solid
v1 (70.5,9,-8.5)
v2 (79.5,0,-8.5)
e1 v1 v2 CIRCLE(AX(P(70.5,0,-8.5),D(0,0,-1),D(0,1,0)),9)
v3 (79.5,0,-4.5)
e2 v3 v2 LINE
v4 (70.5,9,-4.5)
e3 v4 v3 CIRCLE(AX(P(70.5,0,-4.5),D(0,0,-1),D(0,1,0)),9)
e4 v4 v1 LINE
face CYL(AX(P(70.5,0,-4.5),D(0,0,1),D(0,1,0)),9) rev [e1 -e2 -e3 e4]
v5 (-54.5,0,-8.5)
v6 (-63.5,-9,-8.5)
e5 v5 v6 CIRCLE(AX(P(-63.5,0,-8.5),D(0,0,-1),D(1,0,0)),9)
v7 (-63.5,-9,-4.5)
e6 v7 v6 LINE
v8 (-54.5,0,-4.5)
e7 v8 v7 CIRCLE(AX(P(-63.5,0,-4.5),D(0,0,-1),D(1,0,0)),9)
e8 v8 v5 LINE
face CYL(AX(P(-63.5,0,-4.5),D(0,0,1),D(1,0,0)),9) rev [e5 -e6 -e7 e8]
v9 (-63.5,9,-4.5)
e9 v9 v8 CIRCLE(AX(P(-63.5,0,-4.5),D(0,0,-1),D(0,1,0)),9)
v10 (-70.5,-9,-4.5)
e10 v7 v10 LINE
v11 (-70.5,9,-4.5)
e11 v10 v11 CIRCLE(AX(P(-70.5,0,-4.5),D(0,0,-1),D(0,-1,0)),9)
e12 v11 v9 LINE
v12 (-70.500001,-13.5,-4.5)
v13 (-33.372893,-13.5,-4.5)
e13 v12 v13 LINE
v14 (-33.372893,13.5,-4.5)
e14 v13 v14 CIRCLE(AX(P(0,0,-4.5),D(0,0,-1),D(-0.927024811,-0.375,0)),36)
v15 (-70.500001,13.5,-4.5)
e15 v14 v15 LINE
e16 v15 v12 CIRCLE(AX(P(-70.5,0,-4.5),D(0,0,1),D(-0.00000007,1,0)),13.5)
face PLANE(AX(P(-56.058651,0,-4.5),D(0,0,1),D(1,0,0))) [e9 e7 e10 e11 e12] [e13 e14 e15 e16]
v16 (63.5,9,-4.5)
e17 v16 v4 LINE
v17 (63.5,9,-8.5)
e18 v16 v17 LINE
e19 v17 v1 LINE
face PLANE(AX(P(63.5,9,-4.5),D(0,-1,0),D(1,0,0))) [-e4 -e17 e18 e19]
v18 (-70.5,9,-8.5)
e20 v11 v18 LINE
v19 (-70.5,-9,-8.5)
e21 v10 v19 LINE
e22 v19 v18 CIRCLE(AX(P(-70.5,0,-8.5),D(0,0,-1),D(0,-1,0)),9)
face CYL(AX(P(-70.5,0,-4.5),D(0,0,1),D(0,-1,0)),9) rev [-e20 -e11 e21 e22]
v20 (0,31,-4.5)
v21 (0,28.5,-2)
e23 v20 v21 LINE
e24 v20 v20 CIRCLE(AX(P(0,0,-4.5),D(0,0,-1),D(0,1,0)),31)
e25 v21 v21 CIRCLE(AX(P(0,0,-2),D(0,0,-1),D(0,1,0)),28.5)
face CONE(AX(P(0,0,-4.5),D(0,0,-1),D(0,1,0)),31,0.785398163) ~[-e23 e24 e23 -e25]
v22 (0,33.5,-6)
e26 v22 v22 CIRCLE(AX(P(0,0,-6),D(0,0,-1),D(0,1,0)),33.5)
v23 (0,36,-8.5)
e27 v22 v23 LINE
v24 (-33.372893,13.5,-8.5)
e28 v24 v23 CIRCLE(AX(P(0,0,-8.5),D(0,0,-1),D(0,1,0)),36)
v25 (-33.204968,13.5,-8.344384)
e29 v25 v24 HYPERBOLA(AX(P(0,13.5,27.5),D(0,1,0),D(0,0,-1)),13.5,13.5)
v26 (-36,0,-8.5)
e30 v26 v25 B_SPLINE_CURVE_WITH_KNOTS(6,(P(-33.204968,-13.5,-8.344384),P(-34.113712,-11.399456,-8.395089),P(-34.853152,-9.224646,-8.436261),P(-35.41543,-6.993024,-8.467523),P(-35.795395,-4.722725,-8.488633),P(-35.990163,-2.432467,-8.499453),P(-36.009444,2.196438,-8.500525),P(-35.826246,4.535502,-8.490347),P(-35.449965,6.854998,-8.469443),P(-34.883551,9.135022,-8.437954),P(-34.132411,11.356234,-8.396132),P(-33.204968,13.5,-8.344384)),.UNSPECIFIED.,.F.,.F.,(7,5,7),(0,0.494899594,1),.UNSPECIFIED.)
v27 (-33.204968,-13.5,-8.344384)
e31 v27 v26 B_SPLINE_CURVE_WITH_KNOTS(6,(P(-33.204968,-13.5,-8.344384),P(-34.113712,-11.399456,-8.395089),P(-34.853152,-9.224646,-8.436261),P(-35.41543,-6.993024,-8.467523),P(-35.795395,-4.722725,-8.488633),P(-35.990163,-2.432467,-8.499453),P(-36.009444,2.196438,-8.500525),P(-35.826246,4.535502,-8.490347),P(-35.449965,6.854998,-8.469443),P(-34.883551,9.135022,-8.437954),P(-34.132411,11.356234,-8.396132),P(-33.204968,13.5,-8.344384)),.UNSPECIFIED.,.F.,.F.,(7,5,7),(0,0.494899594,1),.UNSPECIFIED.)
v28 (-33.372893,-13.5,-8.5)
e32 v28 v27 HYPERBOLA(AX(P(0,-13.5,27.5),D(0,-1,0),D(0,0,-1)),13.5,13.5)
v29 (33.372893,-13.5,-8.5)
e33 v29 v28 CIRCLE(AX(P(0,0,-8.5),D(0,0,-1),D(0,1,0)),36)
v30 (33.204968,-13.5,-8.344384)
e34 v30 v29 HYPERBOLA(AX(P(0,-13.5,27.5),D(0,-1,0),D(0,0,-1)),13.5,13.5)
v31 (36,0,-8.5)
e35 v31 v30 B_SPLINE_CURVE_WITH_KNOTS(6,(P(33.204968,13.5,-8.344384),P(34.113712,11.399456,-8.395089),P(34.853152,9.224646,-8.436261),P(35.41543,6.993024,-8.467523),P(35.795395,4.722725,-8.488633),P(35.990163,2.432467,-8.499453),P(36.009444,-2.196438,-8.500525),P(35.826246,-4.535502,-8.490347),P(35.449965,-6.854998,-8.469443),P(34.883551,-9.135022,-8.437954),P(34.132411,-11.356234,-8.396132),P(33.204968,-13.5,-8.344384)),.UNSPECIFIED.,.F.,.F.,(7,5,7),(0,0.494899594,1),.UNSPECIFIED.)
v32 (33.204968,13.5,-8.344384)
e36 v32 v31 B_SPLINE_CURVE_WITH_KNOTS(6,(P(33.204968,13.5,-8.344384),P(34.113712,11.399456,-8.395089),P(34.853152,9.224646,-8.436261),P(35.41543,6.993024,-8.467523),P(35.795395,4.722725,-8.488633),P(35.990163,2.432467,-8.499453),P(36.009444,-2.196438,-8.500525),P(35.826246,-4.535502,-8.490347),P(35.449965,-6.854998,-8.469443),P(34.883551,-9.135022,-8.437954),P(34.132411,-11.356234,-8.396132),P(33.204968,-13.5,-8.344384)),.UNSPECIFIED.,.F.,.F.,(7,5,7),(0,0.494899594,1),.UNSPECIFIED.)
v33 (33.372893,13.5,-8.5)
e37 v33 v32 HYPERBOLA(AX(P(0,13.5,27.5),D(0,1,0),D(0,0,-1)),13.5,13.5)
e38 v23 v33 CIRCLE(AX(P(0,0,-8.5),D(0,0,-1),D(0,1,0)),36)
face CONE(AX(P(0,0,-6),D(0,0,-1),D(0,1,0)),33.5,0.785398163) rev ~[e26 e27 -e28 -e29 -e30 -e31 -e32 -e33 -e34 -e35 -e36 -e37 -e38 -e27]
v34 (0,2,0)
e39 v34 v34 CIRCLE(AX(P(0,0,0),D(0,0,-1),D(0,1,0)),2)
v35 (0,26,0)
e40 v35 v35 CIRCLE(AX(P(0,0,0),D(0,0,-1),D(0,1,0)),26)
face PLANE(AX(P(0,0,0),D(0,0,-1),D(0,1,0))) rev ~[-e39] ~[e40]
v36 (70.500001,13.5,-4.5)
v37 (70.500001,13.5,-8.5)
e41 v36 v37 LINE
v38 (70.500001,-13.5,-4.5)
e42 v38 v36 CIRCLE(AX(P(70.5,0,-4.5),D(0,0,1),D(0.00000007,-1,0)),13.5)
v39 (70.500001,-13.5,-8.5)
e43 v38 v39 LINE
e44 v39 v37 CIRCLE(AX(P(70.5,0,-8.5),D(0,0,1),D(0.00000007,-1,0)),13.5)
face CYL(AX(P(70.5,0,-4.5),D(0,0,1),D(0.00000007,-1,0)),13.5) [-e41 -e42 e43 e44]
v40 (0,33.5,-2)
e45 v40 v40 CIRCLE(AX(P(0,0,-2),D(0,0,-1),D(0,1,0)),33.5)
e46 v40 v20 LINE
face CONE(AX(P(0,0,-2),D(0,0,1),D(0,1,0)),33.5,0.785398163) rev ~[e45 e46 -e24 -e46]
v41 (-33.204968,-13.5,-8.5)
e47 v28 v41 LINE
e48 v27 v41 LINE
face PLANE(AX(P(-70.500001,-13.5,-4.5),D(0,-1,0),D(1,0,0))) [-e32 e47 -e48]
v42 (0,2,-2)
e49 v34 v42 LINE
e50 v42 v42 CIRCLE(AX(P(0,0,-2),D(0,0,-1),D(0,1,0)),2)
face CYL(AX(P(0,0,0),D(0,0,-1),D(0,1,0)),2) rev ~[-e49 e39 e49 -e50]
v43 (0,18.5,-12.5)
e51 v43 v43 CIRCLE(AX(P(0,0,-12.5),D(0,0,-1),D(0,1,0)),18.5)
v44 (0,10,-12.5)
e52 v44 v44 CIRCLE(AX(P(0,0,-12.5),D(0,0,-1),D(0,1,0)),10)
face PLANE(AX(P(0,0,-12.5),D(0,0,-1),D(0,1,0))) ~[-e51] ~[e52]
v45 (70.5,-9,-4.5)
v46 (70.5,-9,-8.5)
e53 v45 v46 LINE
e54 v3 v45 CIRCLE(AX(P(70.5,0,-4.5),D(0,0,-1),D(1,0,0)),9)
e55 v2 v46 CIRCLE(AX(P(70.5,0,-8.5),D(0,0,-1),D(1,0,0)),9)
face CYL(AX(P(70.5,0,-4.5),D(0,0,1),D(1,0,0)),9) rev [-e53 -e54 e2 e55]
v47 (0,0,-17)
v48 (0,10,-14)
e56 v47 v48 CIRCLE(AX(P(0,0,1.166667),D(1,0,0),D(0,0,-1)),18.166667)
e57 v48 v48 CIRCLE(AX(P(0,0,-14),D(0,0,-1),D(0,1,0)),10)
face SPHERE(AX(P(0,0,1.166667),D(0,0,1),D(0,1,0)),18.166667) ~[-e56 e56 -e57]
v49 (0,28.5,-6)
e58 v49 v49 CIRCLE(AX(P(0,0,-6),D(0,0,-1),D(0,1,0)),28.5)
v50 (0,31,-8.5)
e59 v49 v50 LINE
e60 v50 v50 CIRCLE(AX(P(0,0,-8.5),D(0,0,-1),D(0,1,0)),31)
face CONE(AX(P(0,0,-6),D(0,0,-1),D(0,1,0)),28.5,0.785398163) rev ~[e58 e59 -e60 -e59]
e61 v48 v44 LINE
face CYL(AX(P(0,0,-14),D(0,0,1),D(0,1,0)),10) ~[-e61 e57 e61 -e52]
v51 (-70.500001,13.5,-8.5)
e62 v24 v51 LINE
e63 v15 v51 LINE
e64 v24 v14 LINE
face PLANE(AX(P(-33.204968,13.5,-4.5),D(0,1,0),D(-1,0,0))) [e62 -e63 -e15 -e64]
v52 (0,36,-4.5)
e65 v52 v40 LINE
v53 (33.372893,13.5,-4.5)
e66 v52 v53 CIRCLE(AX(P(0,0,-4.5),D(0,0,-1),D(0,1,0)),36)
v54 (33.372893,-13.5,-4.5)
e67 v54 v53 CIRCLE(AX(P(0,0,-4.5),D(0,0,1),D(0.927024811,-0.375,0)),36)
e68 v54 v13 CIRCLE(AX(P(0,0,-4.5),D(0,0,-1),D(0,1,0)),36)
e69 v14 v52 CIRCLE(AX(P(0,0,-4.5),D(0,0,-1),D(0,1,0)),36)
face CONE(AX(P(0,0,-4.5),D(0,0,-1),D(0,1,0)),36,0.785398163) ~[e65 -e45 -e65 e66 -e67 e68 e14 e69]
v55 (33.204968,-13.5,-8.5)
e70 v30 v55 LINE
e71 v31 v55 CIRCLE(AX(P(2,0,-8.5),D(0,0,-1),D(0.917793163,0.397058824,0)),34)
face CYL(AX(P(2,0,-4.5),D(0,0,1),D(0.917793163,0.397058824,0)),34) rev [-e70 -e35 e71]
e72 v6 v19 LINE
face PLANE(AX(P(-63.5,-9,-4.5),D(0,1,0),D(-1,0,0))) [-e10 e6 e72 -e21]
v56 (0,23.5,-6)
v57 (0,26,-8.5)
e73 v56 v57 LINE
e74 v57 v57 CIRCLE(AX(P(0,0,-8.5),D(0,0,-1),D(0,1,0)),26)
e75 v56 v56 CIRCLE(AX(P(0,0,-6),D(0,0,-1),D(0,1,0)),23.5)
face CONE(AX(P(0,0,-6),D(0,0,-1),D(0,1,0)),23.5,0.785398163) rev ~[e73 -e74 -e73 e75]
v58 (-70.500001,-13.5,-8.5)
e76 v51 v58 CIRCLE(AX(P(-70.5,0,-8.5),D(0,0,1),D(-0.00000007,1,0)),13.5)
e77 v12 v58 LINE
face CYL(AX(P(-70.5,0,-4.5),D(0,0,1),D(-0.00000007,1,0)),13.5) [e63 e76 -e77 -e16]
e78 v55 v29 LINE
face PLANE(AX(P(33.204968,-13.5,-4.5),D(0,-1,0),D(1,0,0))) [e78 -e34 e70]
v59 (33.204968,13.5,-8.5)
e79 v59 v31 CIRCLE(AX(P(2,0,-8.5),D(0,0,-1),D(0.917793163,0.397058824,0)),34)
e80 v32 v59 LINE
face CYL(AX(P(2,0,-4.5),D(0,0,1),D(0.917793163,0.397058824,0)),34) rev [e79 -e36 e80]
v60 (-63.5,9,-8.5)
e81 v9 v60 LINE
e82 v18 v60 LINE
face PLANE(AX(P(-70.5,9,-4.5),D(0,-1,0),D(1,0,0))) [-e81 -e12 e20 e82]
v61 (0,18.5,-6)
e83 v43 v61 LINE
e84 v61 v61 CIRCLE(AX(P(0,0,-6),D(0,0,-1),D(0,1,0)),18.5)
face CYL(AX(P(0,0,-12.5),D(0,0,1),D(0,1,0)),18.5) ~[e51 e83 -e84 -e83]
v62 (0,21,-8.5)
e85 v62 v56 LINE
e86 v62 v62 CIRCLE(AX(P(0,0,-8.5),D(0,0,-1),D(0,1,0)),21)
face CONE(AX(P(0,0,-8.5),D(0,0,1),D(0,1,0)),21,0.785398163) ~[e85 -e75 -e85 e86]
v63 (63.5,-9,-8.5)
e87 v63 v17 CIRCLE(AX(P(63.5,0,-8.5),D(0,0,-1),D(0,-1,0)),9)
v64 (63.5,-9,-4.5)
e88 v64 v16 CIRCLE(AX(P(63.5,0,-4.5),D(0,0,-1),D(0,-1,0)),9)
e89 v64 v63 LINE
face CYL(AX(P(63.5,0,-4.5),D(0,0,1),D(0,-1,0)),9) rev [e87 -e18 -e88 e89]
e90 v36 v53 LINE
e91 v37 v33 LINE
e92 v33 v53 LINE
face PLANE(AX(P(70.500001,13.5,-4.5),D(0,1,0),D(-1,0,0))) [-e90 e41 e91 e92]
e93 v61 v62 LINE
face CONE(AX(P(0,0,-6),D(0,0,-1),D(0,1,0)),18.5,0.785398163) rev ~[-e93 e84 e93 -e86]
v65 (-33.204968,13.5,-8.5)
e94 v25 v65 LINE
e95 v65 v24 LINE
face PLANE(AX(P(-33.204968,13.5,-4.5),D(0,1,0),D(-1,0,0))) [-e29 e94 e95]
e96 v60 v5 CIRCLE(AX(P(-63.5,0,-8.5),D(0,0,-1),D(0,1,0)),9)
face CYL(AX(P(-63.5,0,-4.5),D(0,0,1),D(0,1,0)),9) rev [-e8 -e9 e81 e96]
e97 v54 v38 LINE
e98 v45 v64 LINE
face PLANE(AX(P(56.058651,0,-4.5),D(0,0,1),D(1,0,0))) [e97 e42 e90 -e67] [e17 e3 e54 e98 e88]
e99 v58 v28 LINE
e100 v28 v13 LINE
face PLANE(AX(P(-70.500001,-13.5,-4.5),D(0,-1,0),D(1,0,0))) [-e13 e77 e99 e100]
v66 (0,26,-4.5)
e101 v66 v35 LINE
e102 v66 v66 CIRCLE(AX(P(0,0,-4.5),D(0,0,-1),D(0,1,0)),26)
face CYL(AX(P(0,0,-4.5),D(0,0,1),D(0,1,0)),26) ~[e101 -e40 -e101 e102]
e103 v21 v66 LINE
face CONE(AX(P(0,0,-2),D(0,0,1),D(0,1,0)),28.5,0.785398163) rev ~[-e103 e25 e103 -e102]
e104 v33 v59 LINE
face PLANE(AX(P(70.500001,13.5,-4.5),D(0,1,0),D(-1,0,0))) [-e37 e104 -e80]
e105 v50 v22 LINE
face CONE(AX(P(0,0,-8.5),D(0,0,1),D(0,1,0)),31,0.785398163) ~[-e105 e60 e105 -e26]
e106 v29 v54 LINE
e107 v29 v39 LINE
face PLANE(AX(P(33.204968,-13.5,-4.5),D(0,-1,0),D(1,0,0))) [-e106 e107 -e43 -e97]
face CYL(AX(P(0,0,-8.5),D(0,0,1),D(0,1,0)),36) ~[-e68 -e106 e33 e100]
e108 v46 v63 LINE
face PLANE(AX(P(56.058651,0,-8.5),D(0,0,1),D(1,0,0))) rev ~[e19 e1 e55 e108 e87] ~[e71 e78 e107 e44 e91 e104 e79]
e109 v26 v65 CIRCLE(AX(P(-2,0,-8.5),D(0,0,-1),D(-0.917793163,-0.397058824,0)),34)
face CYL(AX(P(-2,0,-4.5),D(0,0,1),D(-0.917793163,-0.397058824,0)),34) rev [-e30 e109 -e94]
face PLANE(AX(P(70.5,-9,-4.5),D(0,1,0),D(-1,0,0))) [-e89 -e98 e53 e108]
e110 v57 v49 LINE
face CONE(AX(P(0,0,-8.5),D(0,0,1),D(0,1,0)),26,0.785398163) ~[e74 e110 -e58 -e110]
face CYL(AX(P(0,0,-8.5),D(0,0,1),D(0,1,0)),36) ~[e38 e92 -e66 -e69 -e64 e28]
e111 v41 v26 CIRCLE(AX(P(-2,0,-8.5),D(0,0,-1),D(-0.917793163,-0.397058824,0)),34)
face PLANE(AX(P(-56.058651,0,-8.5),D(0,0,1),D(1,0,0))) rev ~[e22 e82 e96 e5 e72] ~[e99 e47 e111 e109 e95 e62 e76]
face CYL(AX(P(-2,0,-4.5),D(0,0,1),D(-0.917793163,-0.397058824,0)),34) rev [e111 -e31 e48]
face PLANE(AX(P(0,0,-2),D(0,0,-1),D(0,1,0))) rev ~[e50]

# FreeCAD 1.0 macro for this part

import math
import FreeCAD as App
import Part
import Sketcher
from FreeCAD import Vector

doc = App.newDocument("Part")
body = doc.addObject("PartDesign::Body", "Body")

# Sketch on YZ plane
sketch1 = doc.addObject("Sketcher::SketchObject", "Sketch")
body.addObject(sketch1)
sketch1.AttachmentSupport = (doc.YZ_Plane, [""])
sketch1.MapMode = "FlatFace"
sketch1.addGeometry([
    Part.LineSegment(Vector(26, 0, 0), Vector(2, 0, 0)),  # 0
    Part.LineSegment(Vector(2, 0, 0), Vector(2, -2, 0)),  # 1
    Part.LineSegment(Vector(2, -2, 0), Vector(0, -2, 0)),  # 2
    Part.LineSegment(Vector(0, -2, 0), Vector(0, -17, 0)),  # 3
    Part.ArcOfCircle(Part.Circle(Vector(0, 1.2, 0), Vector(0, 0, 1), 18.2), math.radians(-90), math.radians(-57)),  # 4
    Part.LineSegment(Vector(10, -14, 0), Vector(10, -12.5, 0)),  # 5
    Part.LineSegment(Vector(10, -12.5, 0), Vector(18.5, -12.5, 0)),  # 6
    Part.LineSegment(Vector(18.5, -12.5, 0), Vector(18.5, -6, 0)),  # 7
    Part.LineSegment(Vector(18.5, -6, 0), Vector(21, -8.5, 0)),  # 8
    Part.LineSegment(Vector(21, -8.5, 0), Vector(23.5, -6, 0)),  # 9
    Part.LineSegment(Vector(23.5, -6, 0), Vector(26, -8.5, 0)),  # 10
    Part.LineSegment(Vector(26, -8.5, 0), Vector(28.5, -6, 0)),  # 11
    Part.LineSegment(Vector(28.5, -6, 0), Vector(31, -8.5, 0)),  # 12
    Part.LineSegment(Vector(31, -8.5, 0), Vector(33.5, -6, 0)),  # 13
    Part.LineSegment(Vector(33.5, -6, 0), Vector(36, -8.5, 0)),  # 14
    Part.LineSegment(Vector(36, -8.5, 0), Vector(36, -4.5, 0)),  # 15
    Part.LineSegment(Vector(36, -4.5, 0), Vector(33.5, -2, 0)),  # 16
    Part.LineSegment(Vector(33.5, -2, 0), Vector(31, -4.5, 0)),  # 17
    Part.LineSegment(Vector(31, -4.5, 0), Vector(28.5, -2, 0)),  # 18
    Part.LineSegment(Vector(28.5, -2, 0), Vector(26, -4.5, 0)),  # 19
    Part.LineSegment(Vector(26, -4.5, 0), Vector(26, 0, 0)),  # 20
], False)
sketch1.addConstraint([
    Sketcher.Constraint("Coincident", 0, 2, 1, 1),
    Sketcher.Constraint("Coincident", 1, 2, 2, 1),
    Sketcher.Constraint("Coincident", 2, 2, 3, 1),
    Sketcher.Constraint("Coincident", 3, 2, 4, 1),
    Sketcher.Constraint("Coincident", 4, 2, 5, 1),
    Sketcher.Constraint("Coincident", 5, 2, 6, 1),
    Sketcher.Constraint("Coincident", 6, 2, 7, 1),
    Sketcher.Constraint("Coincident", 7, 2, 8, 1),
    Sketcher.Constraint("Coincident", 8, 2, 9, 1),
    Sketcher.Constraint("Coincident", 9, 2, 10, 1),
    Sketcher.Constraint("Coincident", 10, 2, 11, 1),
    Sketcher.Constraint("Coincident", 11, 2, 12, 1),
    Sketcher.Constraint("Coincident", 12, 2, 13, 1),
    Sketcher.Constraint("Coincident", 13, 2, 14, 1),
    Sketcher.Constraint("Coincident", 14, 2, 15, 1),
    Sketcher.Constraint("Coincident", 15, 2, 16, 1),
    Sketcher.Constraint("Coincident", 16, 2, 17, 1),
    Sketcher.Constraint("Coincident", 17, 2, 18, 1),
    Sketcher.Constraint("Coincident", 18, 2, 19, 1),
    Sketcher.Constraint("Coincident", 19, 2, 20, 1),
    Sketcher.Constraint("Coincident", 20, 2, 0, 1),
    Sketcher.Constraint("Horizontal", 0),
    Sketcher.Constraint("Vertical", 1),
    Sketcher.Constraint("Horizontal", 2),
    Sketcher.Constraint("Vertical", 3),
    Sketcher.Constraint("Vertical", 5),
    Sketcher.Constraint("Horizontal", 6),
    Sketcher.Constraint("Vertical", 7),
    Sketcher.Constraint("Vertical", 15),
    Sketcher.Constraint("Vertical", 20),
    Sketcher.Constraint("PointOnObject", 4, 3, -2),
    Sketcher.Constraint("PointOnObject", 0, 2, -1),
    Sketcher.Constraint("PointOnObject", 2, 2, -2),
    Sketcher.Constraint("Perpendicular", 8, 9),
    Sketcher.Constraint("Perpendicular", 9, 10),
    Sketcher.Constraint("Perpendicular", 10, 11),
    Sketcher.Constraint("Perpendicular", 11, 12),
    Sketcher.Constraint("Perpendicular", 12, 13),
    Sketcher.Constraint("Perpendicular", 13, 14),
    Sketcher.Constraint("Parallel", 14, 16),
    Sketcher.Constraint("Perpendicular", 16, 17),
    Sketcher.Constraint("Perpendicular", 17, 18),
    Sketcher.Constraint("Perpendicular", 18, 19),
    Sketcher.Constraint("Horizontal", 7, 2, 9, 2),
    Sketcher.Constraint("Horizontal", 8, 2, 10, 2),
    Sketcher.Constraint("Horizontal", 9, 2, 11, 2),
    Sketcher.Constraint("Horizontal", 10, 2, 12, 2),
    Sketcher.Constraint("Horizontal", 11, 2, 13, 2),
    Sketcher.Constraint("Horizontal", 12, 2, 14, 2),
    Sketcher.Constraint("Horizontal", 2, 2, 16, 2),
    Sketcher.Constraint("Horizontal", 15, 2, 17, 2),
    Sketcher.Constraint("Horizontal", 16, 2, 18, 2),
    Sketcher.Constraint("Horizontal", 17, 2, 19, 2),
    Sketcher.Constraint("Vertical", 13, 2, 16, 2),
    Sketcher.Constraint("Equal", 2, 1),
    Sketcher.Constraint("Equal", 8, 9),
    Sketcher.Constraint("DistanceX", 0, 2, 0, 1, 24.0),
    Sketcher.Constraint("DistanceX", 2, 2, 2, 1, 2.0),
    Sketcher.Constraint("DistanceY", 3, 2, 3, 1, 15.0),
    Sketcher.Constraint("DistanceY", 15, 1, 15, 2, 4.0),
    Sketcher.Constraint("DistanceX", 6, 1, 6, 2, 8.5),
    Sketcher.Constraint("DistanceY", 5, 1, 5, 2, 1.5),
    Sketcher.Constraint("DistanceY", 7, 1, 7, 2, 6.5),
    Sketcher.Constraint("DistanceY", 20, 1, 20, 2, 4.5),
])
revolution = doc.addObject("PartDesign::Revolution", "Revolution")
body.addObject(revolution)
revolution.Profile = sketch1
revolution.ReferenceAxis = (sketch1, ["V_Axis"])
revolution.Angle = 360

# Sketch on XY plane
sketch2 = doc.addObject("Sketcher::SketchObject", "Sketch001")
body.addObject(sketch2)
sketch2.AttachmentSupport = (doc.XY_Plane, [""])
sketch2.MapMode = "FlatFace"
sketch2.AttachmentOffset = App.Placement(Vector(0, 0, -4.5), App.Rotation())
sketch2.addGeometry([
    Part.ArcOfCircle(Part.Circle(Vector(-2, 0, 0), Vector(0, 0, 1), 34), math.radians(157), math.radians(203)),  # 0
    Part.LineSegment(Vector(-33, 14, 0), Vector(-71, 14, 0)),  # 1
    Part.ArcOfCircle(Part.Circle(Vector(-70, 0, 0), Vector(0, 0, 1), 14), math.radians(90), math.radians(270)),  # 2
    Part.LineSegment(Vector(-71, -14, 0), Vector(-33, -14, 0)),  # 3
    Part.LineSegment(Vector(-64, -9, 0), Vector(-70, -9, 0)),  # 4
    Part.ArcOfCircle(Part.Circle(Vector(-70, 0, 0), Vector(0, 0, 1), 9), math.radians(90), math.radians(270)),  # 5
    Part.LineSegment(Vector(-70, 9, 0), Vector(-64, 9, 0)),  # 6
    Part.ArcOfCircle(Part.Circle(Vector(-64, 0, 0), Vector(0, 0, 1), 9), math.radians(0), math.radians(90)),  # 7
    Part.ArcOfCircle(Part.Circle(Vector(-64, 0, 0), Vector(0, 0, 1), 9), math.radians(-90), math.radians(0)),  # 8
    Part.LineSegment(Vector(33, -14, 0), Vector(71, -14, 0)),  # 9
    Part.ArcOfCircle(Part.Circle(Vector(70, 0, 0), Vector(0, 0, 1), 14), math.radians(-90), math.radians(90)),  # 10
    Part.LineSegment(Vector(71, 14, 0), Vector(33, 14, 0)),  # 11
    Part.ArcOfCircle(Part.Circle(Vector(2, 0, 0), Vector(0, 0, 1), 34), math.radians(-23), math.radians(23)),  # 12
    Part.ArcOfCircle(Part.Circle(Vector(64, 0, 0), Vector(0, 0, 1), 9), math.radians(90), math.radians(270)),  # 13
    Part.LineSegment(Vector(64, 9, 0), Vector(70, 9, 0)),  # 14
    Part.ArcOfCircle(Part.Circle(Vector(70, 0, 0), Vector(0, 0, 1), 9), math.radians(0), math.radians(90)),  # 15
    Part.ArcOfCircle(Part.Circle(Vector(70, 0, 0), Vector(0, 0, 1), 9), math.radians(-90), math.radians(0)),  # 16
    Part.LineSegment(Vector(70, -9, 0), Vector(64, -9, 0)),  # 17
], False)
sketch2.addConstraint([
    Sketcher.Constraint("Coincident", 0, 1, 1, 1),
    Sketcher.Constraint("Tangent", 1, 2, 2, 1),
    Sketcher.Constraint("Tangent", 2, 2, 3, 1),
    Sketcher.Constraint("Coincident", 3, 2, 0, 2),
    Sketcher.Constraint("Tangent", 4, 2, 5, 2),
    Sketcher.Constraint("Tangent", 5, 1, 6, 1),
    Sketcher.Constraint("Tangent", 6, 2, 7, 2),
    Sketcher.Constraint("Tangent", 7, 1, 8, 2),
    Sketcher.Constraint("Tangent", 8, 1, 4, 1),
    Sketcher.Constraint("Tangent", 9, 2, 10, 1),
    Sketcher.Constraint("Tangent", 10, 2, 11, 1),
    Sketcher.Constraint("Coincident", 11, 2, 12, 2),
    Sketcher.Constraint("Coincident", 12, 1, 9, 1),
    Sketcher.Constraint("Tangent", 13, 1, 14, 1),
    Sketcher.Constraint("Tangent", 14, 2, 15, 2),
    Sketcher.Constraint("Tangent", 15, 1, 16, 2),
    Sketcher.Constraint("Tangent", 16, 1, 17, 1),
    Sketcher.Constraint("Tangent", 17, 2, 13, 2),
    Sketcher.Constraint("Horizontal", 1),
    Sketcher.Constraint("Horizontal", 3),
    Sketcher.Constraint("Horizontal", 4),
    Sketcher.Constraint("Horizontal", 6),
    Sketcher.Constraint("Horizontal", 9),
    Sketcher.Constraint("Horizontal", 11),
    Sketcher.Constraint("Horizontal", 14),
    Sketcher.Constraint("Horizontal", 17),
    Sketcher.Constraint("Coincident", 5, 3, 2, 3),
    Sketcher.Constraint("Coincident", 15, 3, 10, 3),
    Sketcher.Constraint("Equal", 5, 7),
    Sketcher.Constraint("Equal", 2, 10),
    Sketcher.Constraint("Equal", 0, 12),
    Sketcher.Constraint("Equal", 8, 13),
    Sketcher.Constraint("Equal", 13, 15),
    Sketcher.Constraint("Symmetric", 2, 3, 10, 3, -1, 1),
    Sketcher.Constraint("Symmetric", 0, 3, 12, 3, -1, 1),
    Sketcher.Constraint("Symmetric", 7, 3, 13, 3, -2),
    Sketcher.Constraint("PointOnObject", 0, 3, -1),
    Sketcher.Constraint("PointOnObject", 7, 1, -1),
    Sketcher.Constraint("PointOnObject", 15, 1, -1),
    Sketcher.Constraint("Radius", 0, 34.0),
    Sketcher.Constraint("Radius", 5, 9.0),
    Sketcher.Constraint("Radius", 2, 13.5),
    Sketcher.Constraint("DistanceX", 4, 2, 4, 1, 7.0),
    Sketcher.Constraint("DistanceX", 0, 3, -1, 1, 2.0),
    Sketcher.Constraint("DistanceX", 7, 3, 10, 3, 134.0),
])
pad1 = doc.addObject("PartDesign::Pad", "Pad")
body.addObject(pad1)
pad1.Profile = sketch2
pad1.Length = 4
pad1.Reversed = True

doc.recompute()
